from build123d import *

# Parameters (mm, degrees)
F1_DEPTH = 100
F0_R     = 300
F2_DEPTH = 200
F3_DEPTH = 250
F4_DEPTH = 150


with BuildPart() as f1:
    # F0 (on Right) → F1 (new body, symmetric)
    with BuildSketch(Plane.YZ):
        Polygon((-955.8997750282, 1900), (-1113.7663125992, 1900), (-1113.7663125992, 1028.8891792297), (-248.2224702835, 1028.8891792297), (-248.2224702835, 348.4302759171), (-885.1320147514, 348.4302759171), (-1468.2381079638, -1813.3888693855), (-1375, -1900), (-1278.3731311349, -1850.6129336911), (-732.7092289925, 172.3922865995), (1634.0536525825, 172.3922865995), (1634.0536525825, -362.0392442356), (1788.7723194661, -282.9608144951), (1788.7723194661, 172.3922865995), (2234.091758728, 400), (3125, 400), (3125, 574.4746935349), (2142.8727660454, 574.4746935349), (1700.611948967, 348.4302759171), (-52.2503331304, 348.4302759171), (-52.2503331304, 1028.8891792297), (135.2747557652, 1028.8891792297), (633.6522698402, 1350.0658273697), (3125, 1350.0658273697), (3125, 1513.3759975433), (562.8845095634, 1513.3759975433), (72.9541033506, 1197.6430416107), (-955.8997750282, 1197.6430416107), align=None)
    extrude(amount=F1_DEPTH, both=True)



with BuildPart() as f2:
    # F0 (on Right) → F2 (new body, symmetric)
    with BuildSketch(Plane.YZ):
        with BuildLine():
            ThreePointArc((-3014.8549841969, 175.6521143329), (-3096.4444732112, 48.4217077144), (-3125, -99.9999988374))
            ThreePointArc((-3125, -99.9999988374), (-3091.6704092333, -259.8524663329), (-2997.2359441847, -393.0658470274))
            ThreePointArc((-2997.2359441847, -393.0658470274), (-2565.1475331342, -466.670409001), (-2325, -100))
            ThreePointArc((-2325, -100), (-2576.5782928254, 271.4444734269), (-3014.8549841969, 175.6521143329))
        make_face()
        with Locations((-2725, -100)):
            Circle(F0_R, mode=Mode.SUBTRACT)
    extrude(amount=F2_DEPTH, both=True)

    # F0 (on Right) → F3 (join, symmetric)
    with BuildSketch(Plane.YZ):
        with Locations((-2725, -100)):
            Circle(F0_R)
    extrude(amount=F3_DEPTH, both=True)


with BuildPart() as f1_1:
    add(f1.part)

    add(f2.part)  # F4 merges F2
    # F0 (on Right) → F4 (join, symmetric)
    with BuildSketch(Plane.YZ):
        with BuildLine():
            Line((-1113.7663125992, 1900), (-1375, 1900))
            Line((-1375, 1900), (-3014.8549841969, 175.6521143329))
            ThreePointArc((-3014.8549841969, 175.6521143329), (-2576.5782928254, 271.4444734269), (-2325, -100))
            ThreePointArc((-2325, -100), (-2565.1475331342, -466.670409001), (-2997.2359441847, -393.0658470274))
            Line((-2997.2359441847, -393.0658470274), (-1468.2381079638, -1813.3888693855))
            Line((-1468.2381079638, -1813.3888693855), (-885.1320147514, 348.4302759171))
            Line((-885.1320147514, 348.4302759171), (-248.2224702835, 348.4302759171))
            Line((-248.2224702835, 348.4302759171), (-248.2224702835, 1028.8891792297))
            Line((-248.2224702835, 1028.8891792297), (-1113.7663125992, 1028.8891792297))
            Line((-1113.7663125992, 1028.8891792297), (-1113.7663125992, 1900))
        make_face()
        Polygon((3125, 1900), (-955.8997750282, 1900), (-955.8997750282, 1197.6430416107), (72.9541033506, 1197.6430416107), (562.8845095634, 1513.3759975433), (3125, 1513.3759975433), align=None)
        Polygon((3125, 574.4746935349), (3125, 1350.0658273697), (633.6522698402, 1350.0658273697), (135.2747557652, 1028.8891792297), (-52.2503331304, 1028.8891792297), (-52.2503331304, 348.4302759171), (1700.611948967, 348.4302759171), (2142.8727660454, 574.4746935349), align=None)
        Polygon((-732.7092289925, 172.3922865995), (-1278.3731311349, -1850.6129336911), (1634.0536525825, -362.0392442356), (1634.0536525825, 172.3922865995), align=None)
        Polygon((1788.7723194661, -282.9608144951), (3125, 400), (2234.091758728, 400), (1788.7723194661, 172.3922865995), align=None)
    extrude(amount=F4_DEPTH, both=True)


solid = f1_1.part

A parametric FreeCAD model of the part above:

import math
import FreeCAD as App
import Part
import Sketcher
from FreeCAD import Vector

doc = App.newDocument("Part")
params = doc.addObject("Spreadsheet::Sheet", "Params")
for row, (alias, value) in enumerate([
    ("pad1_length", "200 mm"),
    ("sketch2_diameter", "800 mm"),
    ("sketch2_diameter2", "600 mm"),
    ("pad2_length", "400 mm"),
    ("sketch3_diameter", "600 mm"),
    ("pad3_length", "500 mm"),
    ("sketch4_radius", "400 mm"),
    ("pad4_length", "300 mm"),
], start=1):
    params.set(f"A{row}", alias)
    params.set(f"B{row}", "=" + value)
    params.setAlias(f"B{row}", alias)

body = doc.addObject("PartDesign::Body", "Body")

# Sketch on YZ plane
sketch1 = body.newObject("Sketcher::SketchObject", "Sketch")
sketch1.AttachmentSupport = (doc.getObject("YZ_Plane"), [""])
sketch1.MapMode = "FlatFace"
sketch1.addGeometry([
    Part.LineSegment(Vector(-955.899775, 1900, 0), Vector(-1113.766313, 1900, 0)),  # 0
    Part.LineSegment(Vector(-1113.766313, 1900, 0), Vector(-1113.766313, 1028.889179, 0)),  # 1
    Part.LineSegment(Vector(-1113.766313, 1028.889179, 0), Vector(-248.22247, 1028.889179, 0)),  # 2
    Part.LineSegment(Vector(-248.22247, 1028.889179, 0), Vector(-248.22247, 348.430276, 0)),  # 3
    Part.LineSegment(Vector(-248.22247, 348.430276, 0), Vector(-885.132015, 348.430276, 0)),  # 4
    Part.LineSegment(Vector(-885.132015, 348.430276, 0), Vector(-1468.238108, -1813.388869, 0)),  # 5
    Part.LineSegment(Vector(-1468.238108, -1813.388869, 0), Vector(-1375, -1900, 0)),  # 6
    Part.LineSegment(Vector(-1375, -1900, 0), Vector(-1278.373131, -1850.612934, 0)),  # 7
    Part.LineSegment(Vector(-1278.373131, -1850.612934, 0), Vector(-732.709229, 172.392287, 0)),  # 8
    Part.LineSegment(Vector(-732.709229, 172.392287, 0), Vector(1634.053653, 172.392287, 0)),  # 9
    Part.LineSegment(Vector(1634.053653, 172.392287, 0), Vector(1634.053653, -362.039244, 0)),  # 10
    Part.LineSegment(Vector(1634.053653, -362.039244, 0), Vector(1788.772319, -282.960814, 0)),  # 11
    Part.LineSegment(Vector(1788.772319, -282.960814, 0), Vector(1788.772319, 172.392287, 0)),  # 12
    Part.LineSegment(Vector(1788.772319, 172.392287, 0), Vector(2234.091759, 400, 0)),  # 13
    Part.LineSegment(Vector(2234.091759, 400, 0), Vector(3125, 400, 0)),  # 14
    Part.LineSegment(Vector(3125, 400, 0), Vector(3125, 574.474694, 0)),  # 15
    Part.LineSegment(Vector(3125, 574.474694, 0), Vector(2142.872766, 574.474694, 0)),  # 16
    Part.LineSegment(Vector(2142.872766, 574.474694, 0), Vector(1700.611949, 348.430276, 0)),  # 17
    Part.LineSegment(Vector(1700.611949, 348.430276, 0), Vector(-52.250333, 348.430276, 0)),  # 18
    Part.LineSegment(Vector(-52.250333, 348.430276, 0), Vector(-52.250333, 1028.889179, 0)),  # 19
    Part.LineSegment(Vector(-52.250333, 1028.889179, 0), Vector(135.274756, 1028.889179, 0)),  # 20
    Part.LineSegment(Vector(135.274756, 1028.889179, 0), Vector(633.65227, 1350.065827, 0)),  # 21
    Part.LineSegment(Vector(633.65227, 1350.065827, 0), Vector(3125, 1350.065827, 0)),  # 22
    Part.LineSegment(Vector(3125, 1350.065827, 0), Vector(3125, 1513.375998, 0)),  # 23
    Part.LineSegment(Vector(3125, 1513.375998, 0), Vector(562.88451, 1513.375998, 0)),  # 24
    Part.LineSegment(Vector(562.88451, 1513.375998, 0), Vector(72.954103, 1197.643042, 0)),  # 25
    Part.LineSegment(Vector(72.954103, 1197.643042, 0), Vector(-955.899775, 1197.643042, 0)),  # 26
    Part.LineSegment(Vector(-955.899775, 1197.643042, 0), Vector(-955.899775, 1900, 0)),  # 27
], False)
sketch1.addConstraint([
    Sketcher.Constraint("Coincident", 0, 2, 1, 1),
    Sketcher.Constraint("Coincident", 1, 2, 2, 1),
    Sketcher.Constraint("Coincident", 2, 2, 3, 1),
    Sketcher.Constraint("Coincident", 3, 2, 4, 1),
    Sketcher.Constraint("Coincident", 4, 2, 5, 1),
    Sketcher.Constraint("Coincident", 5, 2, 6, 1),
    Sketcher.Constraint("Coincident", 6, 2, 7, 1),
    Sketcher.Constraint("Coincident", 7, 2, 8, 1),
    Sketcher.Constraint("Coincident", 8, 2, 9, 1),
    Sketcher.Constraint("Coincident", 9, 2, 10, 1),
    Sketcher.Constraint("Coincident", 10, 2, 11, 1),
    Sketcher.Constraint("Coincident", 11, 2, 12, 1),
    Sketcher.Constraint("Coincident", 12, 2, 13, 1),
    Sketcher.Constraint("Coincident", 13, 2, 14, 1),
    Sketcher.Constraint("Coincident", 14, 2, 15, 1),
    Sketcher.Constraint("Coincident", 15, 2, 16, 1),
    Sketcher.Constraint("Coincident", 16, 2, 17, 1),
    Sketcher.Constraint("Coincident", 17, 2, 18, 1),
    Sketcher.Constraint("Coincident", 18, 2, 19, 1),
    Sketcher.Constraint("Coincident", 19, 2, 20, 1),
    Sketcher.Constraint("Coincident", 20, 2, 21, 1),
    Sketcher.Constraint("Coincident", 21, 2, 22, 1),
    Sketcher.Constraint("Coincident", 22, 2, 23, 1),
    Sketcher.Constraint("Coincident", 23, 2, 24, 1),
    Sketcher.Constraint("Coincident", 24, 2, 25, 1),
    Sketcher.Constraint("Coincident", 25, 2, 26, 1),
    Sketcher.Constraint("Coincident", 26, 2, 27, 1),
    Sketcher.Constraint("Coincident", 27, 2, 0, 1),
    Sketcher.Constraint("Horizontal", 0),
    Sketcher.Constraint("Vertical", 1),
    Sketcher.Constraint("Horizontal", 2),
    Sketcher.Constraint("Vertical", 3),
    Sketcher.Constraint("Horizontal", 4),
    Sketcher.Constraint("Horizontal", 9),
    Sketcher.Constraint("Vertical", 10),
    Sketcher.Constraint("Vertical", 12),
    Sketcher.Constraint("Horizontal", 14),
    Sketcher.Constraint("Vertical", 15),
    Sketcher.Constraint("Horizontal", 16),
    Sketcher.Constraint("Horizontal", 18),
    Sketcher.Constraint("Vertical", 19),
    Sketcher.Constraint("Horizontal", 20),
    Sketcher.Constraint("Horizontal", 22),
    Sketcher.Constraint("Vertical", 23),
    Sketcher.Constraint("Horizontal", 24),
    Sketcher.Constraint("Horizontal", 26),
    Sketcher.Constraint("Vertical", 27),
    Sketcher.Constraint("Parallel", 5, 8),
    Sketcher.Constraint("Parallel", 7, 11),
    Sketcher.Constraint("Parallel", 11, 13),
    Sketcher.Constraint("Parallel", 13, 17),
    Sketcher.Constraint("Parallel", 21, 25),
    Sketcher.Constraint("Horizontal", 9, 2, 12, 2),
    Sketcher.Constraint("Horizontal", 4, 2, 17, 2),
    Sketcher.Constraint("Horizontal", 2, 2, 19, 2),
    Sketcher.Constraint("Vertical", 15, 2, 22, 2),
    Sketcher.Constraint("DistanceY", -1, 1, 0, 2, 1900.0),
    Sketcher.Constraint("DistanceX", 6, 2, -1, 1, 1375.0),
    Sketcher.Constraint("DistanceY", 6, 2, -1, 1, 1900.0),
    Sketcher.Constraint("DistanceY", -1, 1, 13, 2, 400.0),
    Sketcher.Constraint("DistanceX", -1, 1, 14, 2, 3125.0),
    Sketcher.Constraint("DistanceY", 12, 1, 12, 2, 455.353101),
    Sketcher.Constraint("DistanceX", 9, 1, 9, 2, 2366.762882),
    Sketcher.Constraint("DistanceX", 14, 1, 14, 2, 890.908241),
    Sketcher.Constraint("DistanceX", 20, 1, 20, 2, 187.525089),
    Sketcher.Constraint("DistanceX", 22, 1, 22, 2, 2491.34773),
    Sketcher.Constraint("DistanceX", 24, 2, 24, 1, 2562.11549),
    Sketcher.Constraint("DistanceX", 26, 2, 26, 1, 1028.853878),
    Sketcher.Constraint("DistanceY", 1, 2, 1, 1, 871.110821),
    Sketcher.Constraint("DistanceY", 10, 2, 10, 1, 534.431531),
    Sketcher.Constraint("DistanceY", 23, 1, 23, 2, 163.31017),
    Sketcher.Constraint("DistanceY", 27, 1, 27, 2, 702.356958),
    Sketcher.Constraint("Distance", 6, 127.25892),
    Sketcher.Constraint("Distance", 13, 500.114661),
    Sketcher.Constraint("Distance", 21, 592.903522),
    Sketcher.Constraint("DistanceX", 0, 2, 0, 1, 157.866538),
    Sketcher.Constraint("DistanceX", 2, 1, 2, 2, 865.543842),
    Sketcher.Constraint("DistanceX", 4, 2, 4, 1, 636.909544),
    Sketcher.Constraint("DistanceX", 16, 2, 16, 1, 982.127234),
    Sketcher.Constraint("DistanceX", 18, 2, 18, 1, 1752.862282),
    Sketcher.Constraint("DistanceY", 3, 2, 3, 1, 680.458903),
    Sketcher.Constraint("DistanceY", 15, 1, 15, 2, 174.474694),
    Sketcher.Constraint("DistanceX", 2, 2, -1, 1, 248.22247),
    Sketcher.Constraint("DistanceY", 5, 2, -1, 1, 1813.388869),
])
pad1 = body.newObject("PartDesign::Pad", "Pad")
pad1.Profile = sketch1
pad1.setExpression("Length", "Params.pad1_length")
pad1.Midplane = True
body2 = doc.addObject("PartDesign::Body", "Body001")

# Sketch on YZ plane
sketch2 = body2.newObject("Sketcher::SketchObject", "Sketch001")
sketch2.AttachmentSupport = (doc.getObject("YZ_Plane001"), [""])
sketch2.MapMode = "FlatFace"
sketch2.addGeometry([
    Part.Circle(Vector(-2725, -100, 0), Vector(0, 0, 1), 400),
    Part.Circle(Vector(-2725, -100, 0), Vector(0, 0, 1), 300),
], False)
sketch2.addConstraint([
    Sketcher.Constraint("Coincident", 1, 3, 0, 3),
    Sketcher.Constraint("Diameter", 0, 800.0),
    Sketcher.Constraint("Diameter", 1, 600.0),
    Sketcher.Constraint("DistanceX", 0, 3, -1, 1, 2725.0),
    Sketcher.Constraint("DistanceY", 0, 3, -1, 1, 100.0),
])
sketch2.setExpression("Constraints[1]", "Params.sketch2_diameter")
sketch2.setExpression("Constraints[2]", "Params.sketch2_diameter2")
pad2 = body2.newObject("PartDesign::Pad", "Pad001")
pad2.Profile = sketch2
pad2.setExpression("Length", "Params.pad2_length")
pad2.Midplane = True

# Sketch on YZ plane
sketch3 = body2.newObject("Sketcher::SketchObject", "Sketch002")
sketch3.AttachmentSupport = (doc.getObject("YZ_Plane001"), [""])
sketch3.MapMode = "FlatFace"
sketch3.addGeometry(Part.Circle(Vector(-2725, -100, 0), Vector(0, 0, 1), 300), False)
sketch3.addConstraint([
    Sketcher.Constraint("Diameter", 0, 600.0),
    Sketcher.Constraint("DistanceX", 0, 3, -1, 1, 2725.0),
    Sketcher.Constraint("DistanceY", 0, 3, -1, 1, 100.0),
])
sketch3.setExpression("Constraints[0]", "Params.sketch3_diameter")
pad3 = body2.newObject("PartDesign::Pad", "Pad002")
pad3.Profile = sketch3
pad3.setExpression("Length", "Params.pad3_length")
pad3.Midplane = True
body.AllowCompound = True
doc.recompute()

boolean = body.newObject("PartDesign::Boolean", "Boolean")
boolean.Type = "Fuse"
boolean.addObjects([body2])

# Sketch on YZ plane
sketch4 = body.newObject("Sketcher::SketchObject", "Sketch003")
sketch4.AttachmentSupport = (doc.getObject("YZ_Plane"), [""])
sketch4.MapMode = "FlatFace"
sketch4.addGeometry([
    Part.LineSegment(Vector(-1113.766313, 1900, 0), Vector(-1375, 1900, 0)),  # 0
    Part.LineSegment(Vector(-1375, 1900, 0), Vector(-3014.854984, 175.652114, 0)),  # 1
    Part.ArcOfCircle(Part.Circle(Vector(-2725, -100, 0), Vector(0, 0, 1), 400), math.radians(-132.889754), math.radians(136.438697)),  # 2
    Part.LineSegment(Vector(-2997.235944, -393.065847, 0), Vector(-1468.238108, -1813.388869, 0)),  # 3
    Part.LineSegment(Vector(-1468.238108, -1813.388869, 0), Vector(-885.132015, 348.430276, 0)),  # 4
    Part.LineSegment(Vector(-885.132015, 348.430276, 0), Vector(-248.22247, 348.430276, 0)),  # 5
    Part.LineSegment(Vector(-248.22247, 348.430276, 0), Vector(-248.22247, 1028.889179, 0)),  # 6
    Part.LineSegment(Vector(-248.22247, 1028.889179, 0), Vector(-1113.766313, 1028.889179, 0)),  # 7
    Part.LineSegment(Vector(-1113.766313, 1028.889179, 0), Vector(-1113.766313, 1900, 0)),  # 8
    Part.LineSegment(Vector(3125, 1900, 0), Vector(-955.899775, 1900, 0)),  # 9
    Part.LineSegment(Vector(-955.899775, 1900, 0), Vector(-955.899775, 1197.643042, 0)),  # 10
    Part.LineSegment(Vector(-955.899775, 1197.643042, 0), Vector(72.954103, 1197.643042, 0)),  # 11
    Part.LineSegment(Vector(72.954103, 1197.643042, 0), Vector(562.88451, 1513.375998, 0)),  # 12
    Part.LineSegment(Vector(562.88451, 1513.375998, 0), Vector(3125, 1513.375998, 0)),  # 13
    Part.LineSegment(Vector(3125, 1513.375998, 0), Vector(3125, 1900, 0)),  # 14
    Part.LineSegment(Vector(3125, 574.474694, 0), Vector(3125, 1350.065827, 0)),  # 15
    Part.LineSegment(Vector(3125, 1350.065827, 0), Vector(633.65227, 1350.065827, 0)),  # 16
    Part.LineSegment(Vector(633.65227, 1350.065827, 0), Vector(135.274756, 1028.889179, 0)),  # 17
    Part.LineSegment(Vector(135.274756, 1028.889179, 0), Vector(-52.250333, 1028.889179, 0)),  # 18
    Part.LineSegment(Vector(-52.250333, 1028.889179, 0), Vector(-52.250333, 348.430276, 0)),  # 19
    Part.LineSegment(Vector(-52.250333, 348.430276, 0), Vector(1700.611949, 348.430276, 0)),  # 20
    Part.LineSegment(Vector(1700.611949, 348.430276, 0), Vector(2142.872766, 574.474694, 0)),  # 21
    Part.LineSegment(Vector(2142.872766, 574.474694, 0), Vector(3125, 574.474694, 0)),  # 22
    Part.LineSegment(Vector(-732.709229, 172.392287, 0), Vector(-1278.373131, -1850.612934, 0)),  # 23
    Part.LineSegment(Vector(-1278.373131, -1850.612934, 0), Vector(1634.053653, -362.039244, 0)),  # 24
    Part.LineSegment(Vector(1634.053653, -362.039244, 0), Vector(1634.053653, 172.392287, 0)),  # 25
    Part.LineSegment(Vector(1634.053653, 172.392287, 0), Vector(-732.709229, 172.392287, 0)),  # 26
    Part.LineSegment(Vector(1788.772319, -282.960814, 0), Vector(3125, 400, 0)),  # 27
    Part.LineSegment(Vector(3125, 400, 0), Vector(2234.091759, 400, 0)),  # 28
    Part.LineSegment(Vector(2234.091759, 400, 0), Vector(1788.772319, 172.392287, 0)),  # 29
    Part.LineSegment(Vector(1788.772319, 172.392287, 0), Vector(1788.772319, -282.960814, 0)),  # 30
], False)
sketch4.addConstraint([
    Sketcher.Constraint("Coincident", 0, 2, 1, 1),
    Sketcher.Constraint("Tangent", 1, 2, 2, 2),
    Sketcher.Constraint("Tangent", 2, 1, 3, 1),
    Sketcher.Constraint("Coincident", 3, 2, 4, 1),
    Sketcher.Constraint("Coincident", 4, 2, 5, 1),
    Sketcher.Constraint("Coincident", 5, 2, 6, 1),
    Sketcher.Constraint("Coincident", 6, 2, 7, 1),
    Sketcher.Constraint("Coincident", 7, 2, 8, 1),
    Sketcher.Constraint("Coincident", 8, 2, 0, 1),
    Sketcher.Constraint("Coincident", 9, 2, 10, 1),
    Sketcher.Constraint("Coincident", 10, 2, 11, 1),
    Sketcher.Constraint("Coincident", 11, 2, 12, 1),
    Sketcher.Constraint("Coincident", 12, 2, 13, 1),
    Sketcher.Constraint("Coincident", 13, 2, 14, 1),
    Sketcher.Constraint("Coincident", 14, 2, 9, 1),
    Sketcher.Constraint("Coincident", 15, 2, 16, 1),
    Sketcher.Constraint("Coincident", 16, 2, 17, 1),
    Sketcher.Constraint("Coincident", 17, 2, 18, 1),
    Sketcher.Constraint("Coincident", 18, 2, 19, 1),
    Sketcher.Constraint("Coincident", 19, 2, 20, 1),
    Sketcher.Constraint("Coincident", 20, 2, 21, 1),
    Sketcher.Constraint("Coincident", 21, 2, 22, 1),
    Sketcher.Constraint("Coincident", 22, 2, 15, 1),
    Sketcher.Constraint("Coincident", 23, 2, 24, 1),
    Sketcher.Constraint("Coincident", 24, 2, 25, 1),
    Sketcher.Constraint("Coincident", 25, 2, 26, 1),
    Sketcher.Constraint("Coincident", 26, 2, 23, 1),
    Sketcher.Constraint("Coincident", 27, 2, 28, 1),
    Sketcher.Constraint("Coincident", 28, 2, 29, 1),
    Sketcher.Constraint("Coincident", 29, 2, 30, 1),
    Sketcher.Constraint("Coincident", 30, 2, 27, 1),
    Sketcher.Constraint("Horizontal", 0),
    Sketcher.Constraint("Horizontal", 5),
    Sketcher.Constraint("Vertical", 6),
    Sketcher.Constraint("Horizontal", 7),
    Sketcher.Constraint("Vertical", 8),
    Sketcher.Constraint("Horizontal", 9),
    Sketcher.Constraint("Vertical", 10),
    Sketcher.Constraint("Horizontal", 11),
    Sketcher.Constraint("Horizontal", 13),
    Sketcher.Constraint("Vertical", 14),
    Sketcher.Constraint("Vertical", 15),
    Sketcher.Constraint("Horizontal", 16),
    Sketcher.Constraint("Horizontal", 18),
    Sketcher.Constraint("Vertical", 19),
    Sketcher.Constraint("Horizontal", 20),
    Sketcher.Constraint("Horizontal", 22),
    Sketcher.Constraint("Vertical", 25),
    Sketcher.Constraint("Horizontal", 26),
    Sketcher.Constraint("Horizontal", 28),
    Sketcher.Constraint("Vertical", 30),
    Sketcher.Constraint("Parallel", 12, 17),
    Sketcher.Constraint("Parallel", 4, 23),
    Sketcher.Constraint("Parallel", 21, 24),
    Sketcher.Constraint("Parallel", 24, 27),
    Sketcher.Constraint("Parallel", 27, 29),
    Sketcher.Constraint("Horizontal", 8, 2, 9, 2),
    Sketcher.Constraint("Horizontal", 7, 2, 17, 2),
    Sketcher.Constraint("Horizontal", 5, 2, 19, 2),
    Sketcher.Constraint("Horizontal", 26, 2, 29, 2),
    Sketcher.Constraint("Vertical", 14, 2, 15, 2),
    Sketcher.Constraint("Vertical", 22, 2, 27, 2),
    Sketcher.Constraint("Radius", 2, 400.0),
    Sketcher.Constraint("DistanceX", 2, 3, -1, 1, 2725.0),
    Sketcher.Constraint("DistanceY", 2, 3, -1, 1, 100.0),
    Sketcher.Constraint("DistanceX", 0, 2, -1, 1, 1375.0),
    Sketcher.Constraint("DistanceY", -1, 1, 0, 2, 1900.0),
    Sketcher.Constraint("DistanceX", -1, 1, 13, 2, 3125.0),
    Sketcher.Constraint("DistanceY", -1, 1, 27, 2, 400.0),
    Sketcher.Constraint("DistanceY", 30, 2, 30, 1, 455.353101),
    Sketcher.Constraint("DistanceX", 11, 1, 11, 2, 1028.853878),
    Sketcher.Constraint("DistanceX", 13, 1, 13, 2, 2562.11549),
    Sketcher.Constraint("DistanceX", 16, 2, 16, 1, 2491.34773),
    Sketcher.Constraint("DistanceX", 18, 2, 18, 1, 187.525089),
    Sketcher.Constraint("DistanceX", 26, 2, 26, 1, 2366.762882),
    Sketcher.Constraint("DistanceX", 28, 2, 28, 1, 890.908241),
    Sketcher.Constraint("DistanceY", 8, 1, 8, 2, 871.110821),
    Sketcher.Constraint("DistanceY", 10, 2, 10, 1, 702.356958),
    Sketcher.Constraint("DistanceY", 25, 1, 25, 2, 534.431531),
    Sketcher.Constraint("Distance", 17, 592.903522),
    Sketcher.Constraint("Distance", 27, 1500.64649),
    Sketcher.Constraint("DistanceX", 0, 2, 0, 1, 261.233687),
    Sketcher.Constraint("DistanceX", 5, 1, 5, 2, 636.909544),
    Sketcher.Constraint("DistanceX", 7, 2, 7, 1, 865.543842),
    Sketcher.Constraint("DistanceX", 9, 2, 9, 1, 4080.899775),
    Sketcher.Constraint("DistanceX", 20, 1, 20, 2, 1752.862282),
    Sketcher.Constraint("DistanceX", 22, 1, 22, 2, 982.127234),
    Sketcher.Constraint("DistanceY", 6, 1, 6, 2, 680.458903),
    Sketcher.Constraint("DistanceY", 14, 1, 14, 2, 386.624002),
    Sketcher.Constraint("DistanceY", 3, 2, -1, 1, 1813.388869),
    Sketcher.Constraint("DistanceX", 23, 2, -1, 1, 1278.373131),
    Sketcher.Constraint("DistanceX", 26, 2, -1, 1, 732.709229),
])
sketch4.setExpression("Constraints[62]", "Params.sketch4_radius")
pad4 = body.newObject("PartDesign::Pad", "Pad003")
pad4.Profile = sketch4
pad4.setExpression("Length", "Params.pad4_length")
pad4.Midplane = True

doc.recompute()
